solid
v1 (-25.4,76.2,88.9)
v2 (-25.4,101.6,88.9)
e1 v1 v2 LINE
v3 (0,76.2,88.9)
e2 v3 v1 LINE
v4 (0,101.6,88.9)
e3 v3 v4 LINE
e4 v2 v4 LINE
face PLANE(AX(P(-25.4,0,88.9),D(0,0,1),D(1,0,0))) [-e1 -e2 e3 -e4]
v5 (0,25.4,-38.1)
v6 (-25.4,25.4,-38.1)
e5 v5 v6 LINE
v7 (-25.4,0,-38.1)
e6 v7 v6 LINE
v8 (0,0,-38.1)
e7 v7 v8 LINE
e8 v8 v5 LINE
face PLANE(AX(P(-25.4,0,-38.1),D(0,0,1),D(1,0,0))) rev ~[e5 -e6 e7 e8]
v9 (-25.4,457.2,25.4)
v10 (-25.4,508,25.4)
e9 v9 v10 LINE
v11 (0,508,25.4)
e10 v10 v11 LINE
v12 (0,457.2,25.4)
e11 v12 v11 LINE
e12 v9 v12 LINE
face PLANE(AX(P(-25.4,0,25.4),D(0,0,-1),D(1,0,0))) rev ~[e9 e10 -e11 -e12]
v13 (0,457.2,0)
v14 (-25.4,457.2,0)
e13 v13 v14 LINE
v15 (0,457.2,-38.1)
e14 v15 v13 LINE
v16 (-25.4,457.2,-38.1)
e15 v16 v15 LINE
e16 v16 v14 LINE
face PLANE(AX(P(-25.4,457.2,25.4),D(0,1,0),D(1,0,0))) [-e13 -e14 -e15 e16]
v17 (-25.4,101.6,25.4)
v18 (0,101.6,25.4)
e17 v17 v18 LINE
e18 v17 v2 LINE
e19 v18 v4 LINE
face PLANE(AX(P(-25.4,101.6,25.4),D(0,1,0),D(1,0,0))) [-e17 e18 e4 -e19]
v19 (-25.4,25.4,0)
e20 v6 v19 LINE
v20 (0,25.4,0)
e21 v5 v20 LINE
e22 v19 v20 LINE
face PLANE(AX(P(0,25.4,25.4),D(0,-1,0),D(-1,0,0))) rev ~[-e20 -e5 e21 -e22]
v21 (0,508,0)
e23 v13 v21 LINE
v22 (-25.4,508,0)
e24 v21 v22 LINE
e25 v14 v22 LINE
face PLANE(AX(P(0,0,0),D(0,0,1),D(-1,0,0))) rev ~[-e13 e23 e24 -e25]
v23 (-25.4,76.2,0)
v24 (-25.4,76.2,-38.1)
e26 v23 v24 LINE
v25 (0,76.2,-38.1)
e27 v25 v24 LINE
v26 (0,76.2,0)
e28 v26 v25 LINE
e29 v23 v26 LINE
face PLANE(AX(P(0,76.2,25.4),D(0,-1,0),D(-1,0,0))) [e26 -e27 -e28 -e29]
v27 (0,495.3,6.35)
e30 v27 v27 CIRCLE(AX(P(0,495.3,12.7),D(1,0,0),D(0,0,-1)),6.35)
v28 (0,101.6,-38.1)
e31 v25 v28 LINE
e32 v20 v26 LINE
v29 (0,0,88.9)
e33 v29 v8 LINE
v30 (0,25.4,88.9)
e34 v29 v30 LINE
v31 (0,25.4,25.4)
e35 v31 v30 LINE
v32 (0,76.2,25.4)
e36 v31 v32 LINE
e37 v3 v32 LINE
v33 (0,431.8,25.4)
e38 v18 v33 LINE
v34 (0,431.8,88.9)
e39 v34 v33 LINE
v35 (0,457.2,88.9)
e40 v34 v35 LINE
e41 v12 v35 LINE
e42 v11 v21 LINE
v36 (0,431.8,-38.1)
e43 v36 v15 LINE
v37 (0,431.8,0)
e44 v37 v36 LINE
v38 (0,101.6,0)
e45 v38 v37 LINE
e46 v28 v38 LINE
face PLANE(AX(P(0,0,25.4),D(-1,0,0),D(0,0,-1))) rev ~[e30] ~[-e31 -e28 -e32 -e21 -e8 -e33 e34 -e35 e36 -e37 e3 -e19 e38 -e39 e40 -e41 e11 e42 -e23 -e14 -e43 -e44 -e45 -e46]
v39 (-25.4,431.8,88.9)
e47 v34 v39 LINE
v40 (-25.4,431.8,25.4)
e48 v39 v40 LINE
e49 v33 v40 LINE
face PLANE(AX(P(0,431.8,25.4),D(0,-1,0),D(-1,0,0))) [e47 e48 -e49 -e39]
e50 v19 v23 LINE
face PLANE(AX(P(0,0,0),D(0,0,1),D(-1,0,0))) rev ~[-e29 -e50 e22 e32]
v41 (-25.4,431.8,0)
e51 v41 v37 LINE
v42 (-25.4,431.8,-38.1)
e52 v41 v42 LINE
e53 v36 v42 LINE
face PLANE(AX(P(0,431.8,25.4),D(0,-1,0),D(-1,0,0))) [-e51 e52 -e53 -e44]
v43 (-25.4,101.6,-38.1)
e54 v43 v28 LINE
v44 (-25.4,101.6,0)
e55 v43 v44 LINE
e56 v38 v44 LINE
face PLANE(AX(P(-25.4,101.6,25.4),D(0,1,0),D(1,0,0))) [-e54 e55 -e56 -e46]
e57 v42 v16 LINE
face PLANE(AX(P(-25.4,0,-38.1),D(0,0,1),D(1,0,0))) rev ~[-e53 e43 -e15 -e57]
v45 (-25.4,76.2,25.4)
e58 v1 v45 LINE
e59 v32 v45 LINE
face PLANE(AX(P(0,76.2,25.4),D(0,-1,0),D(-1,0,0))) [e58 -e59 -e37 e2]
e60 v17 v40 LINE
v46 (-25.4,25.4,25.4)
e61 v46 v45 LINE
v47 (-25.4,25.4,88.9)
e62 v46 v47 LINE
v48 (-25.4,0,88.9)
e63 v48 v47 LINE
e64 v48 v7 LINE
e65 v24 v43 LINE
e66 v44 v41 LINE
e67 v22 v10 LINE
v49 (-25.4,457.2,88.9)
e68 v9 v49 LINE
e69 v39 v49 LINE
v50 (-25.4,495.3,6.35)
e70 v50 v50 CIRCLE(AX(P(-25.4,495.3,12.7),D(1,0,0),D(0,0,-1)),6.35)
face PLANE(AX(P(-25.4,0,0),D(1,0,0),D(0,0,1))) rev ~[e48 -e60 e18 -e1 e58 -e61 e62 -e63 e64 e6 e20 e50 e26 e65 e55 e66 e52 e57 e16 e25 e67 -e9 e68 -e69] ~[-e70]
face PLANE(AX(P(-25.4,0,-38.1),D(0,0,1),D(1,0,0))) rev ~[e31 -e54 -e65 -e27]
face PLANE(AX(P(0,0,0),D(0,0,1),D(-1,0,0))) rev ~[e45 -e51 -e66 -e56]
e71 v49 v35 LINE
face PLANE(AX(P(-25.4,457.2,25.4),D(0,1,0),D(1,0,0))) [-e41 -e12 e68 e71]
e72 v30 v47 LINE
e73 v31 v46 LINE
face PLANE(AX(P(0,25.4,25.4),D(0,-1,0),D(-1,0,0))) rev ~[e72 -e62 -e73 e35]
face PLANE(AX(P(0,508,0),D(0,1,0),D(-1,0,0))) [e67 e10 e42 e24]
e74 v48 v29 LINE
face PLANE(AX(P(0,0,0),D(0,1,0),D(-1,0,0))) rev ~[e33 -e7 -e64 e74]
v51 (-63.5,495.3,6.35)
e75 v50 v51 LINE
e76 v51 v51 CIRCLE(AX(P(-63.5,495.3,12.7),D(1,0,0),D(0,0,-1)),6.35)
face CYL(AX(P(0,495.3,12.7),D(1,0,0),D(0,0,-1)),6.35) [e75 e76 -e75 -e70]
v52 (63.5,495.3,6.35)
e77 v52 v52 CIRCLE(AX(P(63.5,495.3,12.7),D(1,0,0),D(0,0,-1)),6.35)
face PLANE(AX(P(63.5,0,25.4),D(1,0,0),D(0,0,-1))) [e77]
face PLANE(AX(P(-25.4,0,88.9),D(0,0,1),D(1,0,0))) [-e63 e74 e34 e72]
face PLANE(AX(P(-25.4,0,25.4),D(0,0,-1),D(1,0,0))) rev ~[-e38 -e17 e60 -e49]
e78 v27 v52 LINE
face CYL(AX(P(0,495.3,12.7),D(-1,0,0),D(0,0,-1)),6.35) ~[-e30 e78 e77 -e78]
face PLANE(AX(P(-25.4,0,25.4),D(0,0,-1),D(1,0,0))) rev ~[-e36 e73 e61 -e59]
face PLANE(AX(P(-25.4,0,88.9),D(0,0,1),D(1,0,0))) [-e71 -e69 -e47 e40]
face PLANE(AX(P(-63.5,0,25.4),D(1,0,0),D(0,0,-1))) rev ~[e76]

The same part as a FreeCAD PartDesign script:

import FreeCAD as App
import Part
import Sketcher
Q = App.Units.Quantity


def add_polygon(sketch, points):
    """Adds a closed chain of lines whose ends are joined by coincident constraints."""
    first, n = sketch.GeometryCount, len(points)
    for a, b in zip(points, points[1:] + points[:1]):
        sketch.addGeometry(Part.LineSegment(App.Vector(*a, 0), App.Vector(*b, 0)), False)
    for i in range(n):
        sketch.addConstraint(Sketcher.Constraint("Coincident", first + i, 2, first + (i + 1) % n, 1))

doc = App.newDocument("Part")
params = doc.addObject("Spreadsheet::Sheet", "Params")
for row, (alias, value) in enumerate([
    ("sketch1_width", "1 in"),
    ("pad1_length", "20 in"),
    ("sketch2_diameter", "0.5 in"),
    ("pad2_length", "5 in"),
    ("sketch3_width", "1 in"),
    ("pad3_length", "5 in"),
], start=1):
    params.set(f"A{row}", alias)
    params.set(f"B{row}", "=" + value)
    params.setAlias(f"B{row}", alias)

body = doc.addObject("PartDesign::Body", "Body")

# Sketch on XZ plane
sketch1 = body.newObject("Sketcher::SketchObject", "Sketch")
sketch1.AttachmentSupport = (doc.getObject("XZ_Plane"), [""])
sketch1.MapMode = "FlatFace"
add_polygon(sketch1, [(0, 25.4), (0, 0), (-25.4, 0), (-25.4, 25.4)])  # lines 0-3
sketch1.addConstraint(Sketcher.Constraint("Vertical", 0))
sketch1.addConstraint(Sketcher.Constraint("Horizontal", 1))
sketch1.addConstraint(Sketcher.Constraint("Vertical", 2))
sketch1.addConstraint(Sketcher.Constraint("Horizontal", 3))
sketch1.addConstraint(Sketcher.Constraint("Coincident", 0, 2, -1, 1))
sketch1.addConstraint(Sketcher.Constraint("Equal", 3, 0))
sketch1.addConstraint(Sketcher.Constraint("DistanceX", 1, 2, 1, 1, Q("1 in")))
sketch1.setExpression("Constraints[10]", "Params.sketch1_width")
pad1 = body.newObject("PartDesign::Pad", "Pad")
pad1.Profile = sketch1
pad1.setExpression("Length", "Params.pad1_length")
pad1.Reversed = True

# Sketch on YZ plane
sketch2 = body.newObject("Sketcher::SketchObject", "Sketch001")
sketch2.AttachmentSupport = (doc.getObject("YZ_Plane"), [""])
sketch2.MapMode = "FlatFace"
sketch2.addGeometry(Part.Circle(App.Vector(495.3, 12.7, 0), App.Vector(0, 0, 1), 6.35), False)
sketch2.addConstraint(Sketcher.Constraint("Diameter", 0, Q("0.5 in")))
sketch2.addConstraint(Sketcher.Constraint("DistanceY", -1, 1, 0, 3, Q("0.5 in")))
sketch2.addConstraint(Sketcher.Constraint("DistanceX", -1, 1, 0, 3, Q("19.5 in")))
sketch2.setExpression("Constraints[0]", "Params.sketch2_diameter")
pad2 = body.newObject("PartDesign::Pad", "Pad001")
pad2.Profile = sketch2
pad2.setExpression("Length", "Params.pad2_length")
pad2.Midplane = True

# Sketch on XY plane
sketch3 = body.newObject("Sketcher::SketchObject", "Sketch002")
sketch3.AttachmentSupport = (doc.getObject("XY_Plane"), [""])
sketch3.MapMode = "FlatFace"
sketch3.AttachmentOffset = App.Placement(App.Vector(0, 0, 1 * 25.4), App.Rotation())
add_polygon(sketch3, [(0, 431.8), (0, 457.2), (-25.4, 457.2), (-25.4, 431.8)])  # lines 0-3
add_polygon(sketch3, [(0, 76.2), (0, 101.6), (-25.4, 101.6), (-25.4, 76.2)])  # lines 4-7
add_polygon(sketch3, [(0, 0), (0, 25.4), (-25.4, 25.4), (-25.4, 0)])  # lines 8-11
sketch3.addConstraint(Sketcher.Constraint("Vertical", 0))
sketch3.addConstraint(Sketcher.Constraint("Horizontal", 1))
sketch3.addConstraint(Sketcher.Constraint("Vertical", 2))
sketch3.addConstraint(Sketcher.Constraint("Horizontal", 3))
sketch3.addConstraint(Sketcher.Constraint("Vertical", 4))
sketch3.addConstraint(Sketcher.Constraint("Horizontal", 5))
sketch3.addConstraint(Sketcher.Constraint("Vertical", 6))
sketch3.addConstraint(Sketcher.Constraint("Horizontal", 7))
sketch3.addConstraint(Sketcher.Constraint("Vertical", 8))
sketch3.addConstraint(Sketcher.Constraint("Horizontal", 9))
sketch3.addConstraint(Sketcher.Constraint("Vertical", 10))
sketch3.addConstraint(Sketcher.Constraint("Horizontal", 11))
sketch3.addConstraint(Sketcher.Constraint("Coincident", 11, 2, -1, 1))
sketch3.addConstraint(Sketcher.Constraint("PointOnObject", 0, 2, -2))
sketch3.addConstraint(Sketcher.Constraint("PointOnObject", 4, 2, -2))
sketch3.addConstraint(Sketcher.Constraint("Vertical", 2, 2, 5, 2))
sketch3.addConstraint(Sketcher.Constraint("Vertical", 6, 2, 9, 2))
sketch3.addConstraint(Sketcher.Constraint("Equal", 11, 0))
sketch3.addConstraint(Sketcher.Constraint("Equal", 2, 4))
sketch3.addConstraint(Sketcher.Constraint("Equal", 6, 8))
sketch3.addConstraint(Sketcher.Constraint("DistanceX", 1, 2, 1, 1, Q("1 in")))
sketch3.addConstraint(Sketcher.Constraint("DistanceY", -1, 1, 4, 2, Q("4 in")))
sketch3.addConstraint(Sketcher.Constraint("DistanceY", 4, 2, 3, 2, Q("13 in")))
sketch3.setExpression("Constraints[32]", "Params.sketch3_width")
pad3 = body.newObject("PartDesign::Pad", "Pad002")
pad3.Profile = sketch3
pad3.setExpression("Length", "Params.pad3_length")
pad3.Midplane = True

doc.recompute()
